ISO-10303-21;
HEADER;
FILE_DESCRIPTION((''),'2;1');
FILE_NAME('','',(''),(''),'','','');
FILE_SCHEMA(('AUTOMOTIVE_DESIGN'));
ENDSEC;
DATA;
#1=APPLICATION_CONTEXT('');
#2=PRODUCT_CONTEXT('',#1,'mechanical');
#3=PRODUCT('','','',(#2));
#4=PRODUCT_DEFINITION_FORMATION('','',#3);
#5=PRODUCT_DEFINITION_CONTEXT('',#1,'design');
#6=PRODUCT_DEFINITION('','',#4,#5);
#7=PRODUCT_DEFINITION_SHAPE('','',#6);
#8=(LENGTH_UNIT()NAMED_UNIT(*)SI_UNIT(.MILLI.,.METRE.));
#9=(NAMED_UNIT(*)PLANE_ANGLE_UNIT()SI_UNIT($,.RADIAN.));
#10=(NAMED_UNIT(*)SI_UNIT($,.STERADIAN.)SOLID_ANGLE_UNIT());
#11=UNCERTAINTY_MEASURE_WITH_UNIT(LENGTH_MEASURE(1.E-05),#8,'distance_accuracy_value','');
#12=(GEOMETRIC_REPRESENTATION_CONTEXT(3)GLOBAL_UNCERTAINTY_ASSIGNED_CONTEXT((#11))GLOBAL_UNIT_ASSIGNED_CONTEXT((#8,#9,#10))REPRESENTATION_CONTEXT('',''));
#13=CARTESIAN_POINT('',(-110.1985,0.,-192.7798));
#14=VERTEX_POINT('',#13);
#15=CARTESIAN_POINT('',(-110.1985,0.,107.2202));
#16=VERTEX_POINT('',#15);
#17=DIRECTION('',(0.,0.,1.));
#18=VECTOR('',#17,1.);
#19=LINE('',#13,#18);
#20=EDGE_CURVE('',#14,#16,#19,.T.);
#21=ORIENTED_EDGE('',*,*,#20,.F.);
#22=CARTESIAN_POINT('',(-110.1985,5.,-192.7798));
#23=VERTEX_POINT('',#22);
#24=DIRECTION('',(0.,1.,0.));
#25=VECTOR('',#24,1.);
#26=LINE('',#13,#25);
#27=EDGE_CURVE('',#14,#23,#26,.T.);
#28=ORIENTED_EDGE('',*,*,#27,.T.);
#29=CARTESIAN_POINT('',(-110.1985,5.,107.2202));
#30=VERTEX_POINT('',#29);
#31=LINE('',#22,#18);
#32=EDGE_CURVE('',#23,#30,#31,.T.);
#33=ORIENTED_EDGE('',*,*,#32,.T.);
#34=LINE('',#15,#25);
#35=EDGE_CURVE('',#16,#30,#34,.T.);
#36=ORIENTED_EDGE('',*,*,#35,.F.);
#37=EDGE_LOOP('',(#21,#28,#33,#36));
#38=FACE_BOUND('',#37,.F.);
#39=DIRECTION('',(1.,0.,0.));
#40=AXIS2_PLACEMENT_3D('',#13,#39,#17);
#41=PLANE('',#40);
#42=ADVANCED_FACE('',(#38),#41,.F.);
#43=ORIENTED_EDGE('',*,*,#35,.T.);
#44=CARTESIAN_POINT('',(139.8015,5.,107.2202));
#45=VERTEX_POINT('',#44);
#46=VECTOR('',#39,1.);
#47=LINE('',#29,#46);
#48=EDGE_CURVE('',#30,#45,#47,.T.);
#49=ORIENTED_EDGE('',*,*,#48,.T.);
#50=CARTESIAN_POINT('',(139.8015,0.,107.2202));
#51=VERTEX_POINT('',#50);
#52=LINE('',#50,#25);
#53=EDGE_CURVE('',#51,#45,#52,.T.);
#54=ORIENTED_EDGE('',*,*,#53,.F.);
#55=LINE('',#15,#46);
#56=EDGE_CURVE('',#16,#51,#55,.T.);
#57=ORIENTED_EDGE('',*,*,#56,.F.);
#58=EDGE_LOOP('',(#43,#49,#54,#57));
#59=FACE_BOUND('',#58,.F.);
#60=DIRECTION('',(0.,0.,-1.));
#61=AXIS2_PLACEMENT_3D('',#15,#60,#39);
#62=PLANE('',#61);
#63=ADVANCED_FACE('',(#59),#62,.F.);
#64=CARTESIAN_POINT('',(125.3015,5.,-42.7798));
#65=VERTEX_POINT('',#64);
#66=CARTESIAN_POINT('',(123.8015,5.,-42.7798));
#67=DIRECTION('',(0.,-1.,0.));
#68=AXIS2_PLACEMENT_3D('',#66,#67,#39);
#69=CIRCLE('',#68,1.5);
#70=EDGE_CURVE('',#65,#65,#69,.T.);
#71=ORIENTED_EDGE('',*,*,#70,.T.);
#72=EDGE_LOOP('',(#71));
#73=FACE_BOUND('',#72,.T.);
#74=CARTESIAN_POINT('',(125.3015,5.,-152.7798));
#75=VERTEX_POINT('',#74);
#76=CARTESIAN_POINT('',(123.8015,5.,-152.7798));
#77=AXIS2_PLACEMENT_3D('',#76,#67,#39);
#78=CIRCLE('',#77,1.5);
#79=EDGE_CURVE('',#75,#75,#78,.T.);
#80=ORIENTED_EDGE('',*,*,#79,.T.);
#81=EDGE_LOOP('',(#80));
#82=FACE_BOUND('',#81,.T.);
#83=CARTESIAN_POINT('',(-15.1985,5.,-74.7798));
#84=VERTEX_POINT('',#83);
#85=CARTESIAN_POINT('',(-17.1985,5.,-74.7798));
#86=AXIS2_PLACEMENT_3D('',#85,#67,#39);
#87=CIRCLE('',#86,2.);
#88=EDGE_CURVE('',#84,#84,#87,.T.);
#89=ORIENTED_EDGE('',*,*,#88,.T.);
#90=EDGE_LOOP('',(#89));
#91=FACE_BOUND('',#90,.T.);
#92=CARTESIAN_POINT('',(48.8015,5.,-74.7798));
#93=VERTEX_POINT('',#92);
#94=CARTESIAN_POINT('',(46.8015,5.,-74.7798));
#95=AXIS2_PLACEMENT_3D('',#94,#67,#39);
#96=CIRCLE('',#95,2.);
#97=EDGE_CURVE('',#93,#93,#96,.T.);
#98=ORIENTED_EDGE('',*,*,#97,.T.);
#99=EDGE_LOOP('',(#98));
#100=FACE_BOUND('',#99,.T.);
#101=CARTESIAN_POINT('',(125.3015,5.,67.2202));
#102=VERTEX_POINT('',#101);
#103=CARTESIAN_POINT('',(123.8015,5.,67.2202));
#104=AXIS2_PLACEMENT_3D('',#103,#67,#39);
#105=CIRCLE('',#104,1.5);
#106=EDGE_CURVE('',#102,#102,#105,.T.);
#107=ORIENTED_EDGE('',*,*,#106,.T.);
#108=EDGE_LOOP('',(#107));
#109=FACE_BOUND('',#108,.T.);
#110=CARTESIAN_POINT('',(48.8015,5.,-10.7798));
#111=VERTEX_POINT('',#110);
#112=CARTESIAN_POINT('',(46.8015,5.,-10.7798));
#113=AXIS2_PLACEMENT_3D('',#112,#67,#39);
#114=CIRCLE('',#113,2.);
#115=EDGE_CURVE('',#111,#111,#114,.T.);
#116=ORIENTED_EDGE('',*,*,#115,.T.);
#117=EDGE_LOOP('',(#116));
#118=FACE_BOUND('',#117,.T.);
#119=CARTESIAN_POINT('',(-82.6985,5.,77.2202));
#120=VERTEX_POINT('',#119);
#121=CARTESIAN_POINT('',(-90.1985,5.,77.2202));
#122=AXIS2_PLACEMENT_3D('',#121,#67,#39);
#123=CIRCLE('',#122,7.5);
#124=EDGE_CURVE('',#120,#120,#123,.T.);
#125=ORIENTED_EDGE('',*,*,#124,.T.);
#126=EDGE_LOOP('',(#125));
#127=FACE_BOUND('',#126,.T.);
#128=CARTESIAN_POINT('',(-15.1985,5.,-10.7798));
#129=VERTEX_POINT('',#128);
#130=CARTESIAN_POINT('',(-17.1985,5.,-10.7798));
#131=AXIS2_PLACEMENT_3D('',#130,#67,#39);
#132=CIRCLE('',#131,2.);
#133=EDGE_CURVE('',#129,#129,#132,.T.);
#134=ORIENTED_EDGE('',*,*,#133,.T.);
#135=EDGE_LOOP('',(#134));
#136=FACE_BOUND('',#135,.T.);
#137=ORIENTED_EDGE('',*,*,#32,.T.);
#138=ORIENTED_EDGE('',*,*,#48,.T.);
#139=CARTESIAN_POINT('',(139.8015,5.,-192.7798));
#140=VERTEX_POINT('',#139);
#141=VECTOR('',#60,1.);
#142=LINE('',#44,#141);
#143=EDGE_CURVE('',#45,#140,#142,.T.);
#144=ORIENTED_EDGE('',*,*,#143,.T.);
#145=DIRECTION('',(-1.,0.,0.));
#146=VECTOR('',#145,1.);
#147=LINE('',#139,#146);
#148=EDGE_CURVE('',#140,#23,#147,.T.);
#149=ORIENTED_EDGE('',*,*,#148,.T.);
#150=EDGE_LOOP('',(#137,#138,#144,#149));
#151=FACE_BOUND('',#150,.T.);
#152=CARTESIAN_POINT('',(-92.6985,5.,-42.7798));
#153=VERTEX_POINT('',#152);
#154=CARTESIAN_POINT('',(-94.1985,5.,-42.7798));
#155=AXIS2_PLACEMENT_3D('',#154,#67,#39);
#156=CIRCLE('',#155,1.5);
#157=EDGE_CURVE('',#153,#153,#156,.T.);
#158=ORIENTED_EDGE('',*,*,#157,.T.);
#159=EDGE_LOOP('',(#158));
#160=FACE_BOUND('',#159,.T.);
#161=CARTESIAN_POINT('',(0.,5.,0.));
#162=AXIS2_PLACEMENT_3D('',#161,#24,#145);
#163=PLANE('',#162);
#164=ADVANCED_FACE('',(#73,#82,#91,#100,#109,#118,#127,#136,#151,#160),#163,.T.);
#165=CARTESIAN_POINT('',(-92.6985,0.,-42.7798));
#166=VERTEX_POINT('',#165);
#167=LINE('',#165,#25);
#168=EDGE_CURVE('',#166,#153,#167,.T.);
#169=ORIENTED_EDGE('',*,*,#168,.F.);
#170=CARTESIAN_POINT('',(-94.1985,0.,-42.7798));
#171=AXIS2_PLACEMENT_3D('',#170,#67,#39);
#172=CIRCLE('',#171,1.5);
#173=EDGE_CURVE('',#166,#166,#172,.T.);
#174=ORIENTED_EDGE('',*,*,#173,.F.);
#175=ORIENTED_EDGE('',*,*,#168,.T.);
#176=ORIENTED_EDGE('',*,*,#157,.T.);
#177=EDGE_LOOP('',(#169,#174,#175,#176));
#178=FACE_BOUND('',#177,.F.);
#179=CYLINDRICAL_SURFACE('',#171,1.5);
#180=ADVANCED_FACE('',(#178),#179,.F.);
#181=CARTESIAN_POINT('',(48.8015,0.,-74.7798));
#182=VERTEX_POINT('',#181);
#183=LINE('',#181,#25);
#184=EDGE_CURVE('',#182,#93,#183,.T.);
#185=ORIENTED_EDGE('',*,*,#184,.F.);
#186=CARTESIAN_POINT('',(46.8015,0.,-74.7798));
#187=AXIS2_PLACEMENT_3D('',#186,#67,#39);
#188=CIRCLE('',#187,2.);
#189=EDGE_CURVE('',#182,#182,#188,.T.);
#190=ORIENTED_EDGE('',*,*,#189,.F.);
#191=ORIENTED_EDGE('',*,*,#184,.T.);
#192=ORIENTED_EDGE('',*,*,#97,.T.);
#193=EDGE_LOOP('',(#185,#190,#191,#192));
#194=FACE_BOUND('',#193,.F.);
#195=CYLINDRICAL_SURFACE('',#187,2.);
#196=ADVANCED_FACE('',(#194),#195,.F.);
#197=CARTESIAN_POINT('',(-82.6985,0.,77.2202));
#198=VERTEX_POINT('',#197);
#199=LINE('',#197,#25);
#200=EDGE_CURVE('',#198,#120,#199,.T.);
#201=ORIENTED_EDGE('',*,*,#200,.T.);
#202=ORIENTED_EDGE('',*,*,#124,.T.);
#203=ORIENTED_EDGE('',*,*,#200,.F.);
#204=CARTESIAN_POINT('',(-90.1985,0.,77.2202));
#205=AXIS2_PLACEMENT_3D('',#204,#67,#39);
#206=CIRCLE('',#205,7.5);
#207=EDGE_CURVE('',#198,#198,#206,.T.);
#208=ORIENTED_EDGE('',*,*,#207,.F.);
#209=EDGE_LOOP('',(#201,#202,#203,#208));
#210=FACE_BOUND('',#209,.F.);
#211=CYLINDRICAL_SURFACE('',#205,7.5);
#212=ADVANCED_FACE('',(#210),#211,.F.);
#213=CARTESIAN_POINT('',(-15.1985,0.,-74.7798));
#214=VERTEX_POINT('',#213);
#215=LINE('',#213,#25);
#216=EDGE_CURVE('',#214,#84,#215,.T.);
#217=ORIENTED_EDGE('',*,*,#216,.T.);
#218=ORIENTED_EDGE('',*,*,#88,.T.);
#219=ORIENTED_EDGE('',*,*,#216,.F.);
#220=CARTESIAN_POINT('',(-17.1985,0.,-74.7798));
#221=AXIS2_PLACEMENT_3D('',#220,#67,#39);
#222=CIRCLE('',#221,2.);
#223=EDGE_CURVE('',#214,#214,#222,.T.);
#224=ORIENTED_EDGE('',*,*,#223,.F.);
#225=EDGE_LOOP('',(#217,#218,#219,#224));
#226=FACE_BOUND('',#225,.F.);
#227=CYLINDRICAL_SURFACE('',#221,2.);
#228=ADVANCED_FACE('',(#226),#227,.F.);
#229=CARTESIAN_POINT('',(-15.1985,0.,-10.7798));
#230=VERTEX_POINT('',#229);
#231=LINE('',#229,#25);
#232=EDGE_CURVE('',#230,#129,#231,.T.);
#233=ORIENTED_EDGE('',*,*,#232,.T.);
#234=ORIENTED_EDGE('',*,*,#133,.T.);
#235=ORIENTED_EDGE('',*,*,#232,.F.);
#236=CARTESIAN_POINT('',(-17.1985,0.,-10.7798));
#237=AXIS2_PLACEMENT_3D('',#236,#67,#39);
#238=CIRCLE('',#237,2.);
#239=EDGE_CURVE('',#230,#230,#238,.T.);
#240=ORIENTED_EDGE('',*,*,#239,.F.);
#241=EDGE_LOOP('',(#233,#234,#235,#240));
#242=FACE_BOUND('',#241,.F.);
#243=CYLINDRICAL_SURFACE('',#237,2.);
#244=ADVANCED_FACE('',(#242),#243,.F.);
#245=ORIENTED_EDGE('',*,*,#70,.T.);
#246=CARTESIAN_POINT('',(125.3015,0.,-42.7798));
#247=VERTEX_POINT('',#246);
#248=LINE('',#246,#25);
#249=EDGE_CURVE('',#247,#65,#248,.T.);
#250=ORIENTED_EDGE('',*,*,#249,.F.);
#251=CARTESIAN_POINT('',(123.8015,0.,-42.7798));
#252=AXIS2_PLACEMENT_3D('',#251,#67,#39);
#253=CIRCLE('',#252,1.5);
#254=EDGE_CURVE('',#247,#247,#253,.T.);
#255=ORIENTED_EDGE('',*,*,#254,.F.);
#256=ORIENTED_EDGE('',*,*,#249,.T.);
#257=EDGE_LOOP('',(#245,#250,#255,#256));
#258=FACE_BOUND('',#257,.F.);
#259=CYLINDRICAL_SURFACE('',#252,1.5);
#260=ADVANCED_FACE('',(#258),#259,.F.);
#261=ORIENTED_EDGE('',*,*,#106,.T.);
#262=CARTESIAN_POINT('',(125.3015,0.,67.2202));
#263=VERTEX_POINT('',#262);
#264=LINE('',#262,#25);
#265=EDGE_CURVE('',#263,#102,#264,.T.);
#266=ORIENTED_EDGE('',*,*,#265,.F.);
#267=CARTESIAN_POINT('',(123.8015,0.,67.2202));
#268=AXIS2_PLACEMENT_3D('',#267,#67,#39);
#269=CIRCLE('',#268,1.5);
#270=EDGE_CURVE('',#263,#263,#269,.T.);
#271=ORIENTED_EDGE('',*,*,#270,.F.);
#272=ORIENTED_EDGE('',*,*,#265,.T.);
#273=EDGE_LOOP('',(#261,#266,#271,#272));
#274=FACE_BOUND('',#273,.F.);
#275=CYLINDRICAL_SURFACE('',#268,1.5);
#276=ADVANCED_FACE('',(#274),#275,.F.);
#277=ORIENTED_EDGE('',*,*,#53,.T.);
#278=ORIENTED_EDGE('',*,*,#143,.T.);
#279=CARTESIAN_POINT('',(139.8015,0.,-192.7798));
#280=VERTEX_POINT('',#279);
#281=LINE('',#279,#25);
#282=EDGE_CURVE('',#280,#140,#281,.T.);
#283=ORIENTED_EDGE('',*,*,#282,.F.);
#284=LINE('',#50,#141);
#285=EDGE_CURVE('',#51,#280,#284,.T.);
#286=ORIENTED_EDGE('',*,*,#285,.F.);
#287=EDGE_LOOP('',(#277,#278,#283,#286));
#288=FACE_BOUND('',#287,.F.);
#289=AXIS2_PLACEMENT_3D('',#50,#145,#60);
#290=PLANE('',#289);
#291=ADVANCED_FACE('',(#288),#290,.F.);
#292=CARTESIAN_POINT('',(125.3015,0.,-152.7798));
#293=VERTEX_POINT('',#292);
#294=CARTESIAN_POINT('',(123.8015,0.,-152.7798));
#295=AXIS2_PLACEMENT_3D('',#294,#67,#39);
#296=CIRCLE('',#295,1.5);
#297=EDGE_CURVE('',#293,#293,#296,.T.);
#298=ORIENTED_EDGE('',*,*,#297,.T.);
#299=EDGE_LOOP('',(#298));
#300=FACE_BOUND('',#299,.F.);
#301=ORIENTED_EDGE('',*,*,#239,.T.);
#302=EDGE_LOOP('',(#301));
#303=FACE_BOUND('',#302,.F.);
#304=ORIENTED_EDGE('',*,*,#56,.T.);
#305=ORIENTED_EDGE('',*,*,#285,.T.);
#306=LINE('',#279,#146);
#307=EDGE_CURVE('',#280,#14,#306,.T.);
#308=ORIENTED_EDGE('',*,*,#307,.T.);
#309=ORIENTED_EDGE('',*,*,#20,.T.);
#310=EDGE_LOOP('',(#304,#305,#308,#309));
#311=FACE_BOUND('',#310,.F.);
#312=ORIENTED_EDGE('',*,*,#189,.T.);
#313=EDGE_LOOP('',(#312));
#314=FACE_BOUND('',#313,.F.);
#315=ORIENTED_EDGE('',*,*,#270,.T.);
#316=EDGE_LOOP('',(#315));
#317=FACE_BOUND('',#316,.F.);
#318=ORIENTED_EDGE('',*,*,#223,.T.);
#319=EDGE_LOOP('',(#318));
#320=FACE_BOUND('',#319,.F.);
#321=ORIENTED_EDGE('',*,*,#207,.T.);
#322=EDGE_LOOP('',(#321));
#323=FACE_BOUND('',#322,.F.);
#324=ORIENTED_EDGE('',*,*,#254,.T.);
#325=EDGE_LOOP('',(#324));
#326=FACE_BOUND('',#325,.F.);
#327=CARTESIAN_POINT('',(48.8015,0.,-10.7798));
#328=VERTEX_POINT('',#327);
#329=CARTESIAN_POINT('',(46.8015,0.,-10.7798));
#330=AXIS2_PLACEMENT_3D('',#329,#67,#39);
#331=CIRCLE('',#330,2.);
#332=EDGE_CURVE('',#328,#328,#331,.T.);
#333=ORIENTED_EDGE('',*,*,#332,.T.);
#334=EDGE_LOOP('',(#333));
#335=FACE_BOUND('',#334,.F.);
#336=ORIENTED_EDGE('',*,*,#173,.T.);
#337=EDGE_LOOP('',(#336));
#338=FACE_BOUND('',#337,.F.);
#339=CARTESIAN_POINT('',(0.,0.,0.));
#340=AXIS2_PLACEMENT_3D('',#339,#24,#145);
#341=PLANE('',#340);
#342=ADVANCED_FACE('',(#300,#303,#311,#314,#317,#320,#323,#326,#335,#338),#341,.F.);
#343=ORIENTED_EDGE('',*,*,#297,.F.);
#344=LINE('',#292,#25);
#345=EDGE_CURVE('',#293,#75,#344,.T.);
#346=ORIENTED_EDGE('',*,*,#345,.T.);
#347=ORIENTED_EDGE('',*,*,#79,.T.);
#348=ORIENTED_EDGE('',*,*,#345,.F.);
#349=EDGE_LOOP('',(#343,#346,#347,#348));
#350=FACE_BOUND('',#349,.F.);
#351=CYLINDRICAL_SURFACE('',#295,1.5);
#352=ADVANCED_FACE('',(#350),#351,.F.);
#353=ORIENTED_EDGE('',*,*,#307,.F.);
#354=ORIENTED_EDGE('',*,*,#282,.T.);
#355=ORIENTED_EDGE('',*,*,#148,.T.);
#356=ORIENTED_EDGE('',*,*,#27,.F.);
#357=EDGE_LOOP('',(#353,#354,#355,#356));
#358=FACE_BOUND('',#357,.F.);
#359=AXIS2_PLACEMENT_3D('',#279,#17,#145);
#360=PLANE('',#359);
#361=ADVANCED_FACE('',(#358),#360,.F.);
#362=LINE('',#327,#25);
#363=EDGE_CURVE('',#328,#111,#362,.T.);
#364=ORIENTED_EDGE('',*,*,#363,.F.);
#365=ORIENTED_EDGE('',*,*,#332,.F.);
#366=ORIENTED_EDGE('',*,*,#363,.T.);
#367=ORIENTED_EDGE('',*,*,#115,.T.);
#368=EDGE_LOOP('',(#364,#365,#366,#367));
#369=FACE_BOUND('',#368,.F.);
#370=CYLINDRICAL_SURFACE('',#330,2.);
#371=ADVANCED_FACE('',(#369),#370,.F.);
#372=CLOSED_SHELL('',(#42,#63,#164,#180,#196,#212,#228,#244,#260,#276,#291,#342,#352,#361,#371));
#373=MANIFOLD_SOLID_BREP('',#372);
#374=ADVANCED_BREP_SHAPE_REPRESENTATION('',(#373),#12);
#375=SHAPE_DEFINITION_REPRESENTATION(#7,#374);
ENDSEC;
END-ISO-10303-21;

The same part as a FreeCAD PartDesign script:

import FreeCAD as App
import Part
import Sketcher

V = App.Vector
Q = App.Units.Quantity

doc = App.newDocument("Part")
params = doc.addObject("Spreadsheet::Sheet", "Params")
for row, (alias, value) in enumerate([
    ("sketch1_width", "250 mm"),
    ("sketch1_height", "300 mm"),
    ("pad1_length", "5 mm"),
    ("sketch2_diameter", "3 mm"),
    ("sketch3_diameter", "15 mm"),
    ("sketch4_diameter", "4 mm"),
], start=1):
    params.set(f"A{row}", alias)
    params.set(f"B{row}", "=" + value)
    params.setAlias(f"B{row}", alias)

body = doc.addObject("PartDesign::Body", "Body")

# Sketch on XZ plane
sketch1 = body.newObject("Sketcher::SketchObject", "Sketch")
sketch1.AttachmentSupport = (doc.getObject("XZ_Plane"), [""])
sketch1.MapMode = "FlatFace"
sketch1.addGeometry([
    Part.LineSegment(V(-110.1985, -192.7798, 0), V(-110.1985, 107.2202, 0)),
    Part.LineSegment(V(-110.1985, 107.2202, 0), V(139.8015, 107.2202, 0)),
    Part.LineSegment(V(139.8015, 107.2202, 0), V(139.8015, -192.7798, 0)),
    Part.LineSegment(V(139.8015, -192.7798, 0), V(-110.1985, -192.7798, 0)),
], False)
sketch1.addConstraint([
    Sketcher.Constraint("Coincident", 0, 2, 1, 1),
    Sketcher.Constraint("Coincident", 1, 2, 2, 1),
    Sketcher.Constraint("Coincident", 2, 2, 3, 1),
    Sketcher.Constraint("Coincident", 3, 2, 0, 1),
    Sketcher.Constraint("Vertical", 0),
    Sketcher.Constraint("Horizontal", 1),
    Sketcher.Constraint("Vertical", 2),
    Sketcher.Constraint("Horizontal", 3),
    Sketcher.Constraint("DistanceX", 1, 1, 1, 2, Q("250 mm")),
    Sketcher.Constraint("DistanceY", 0, 1, 0, 2, Q("300 mm")),
    Sketcher.Constraint("DistanceX", 0, 2, -1, 1, Q("110.1985 mm")),
    Sketcher.Constraint("DistanceY", -1, 1, 0, 2, Q("107.2202 mm")),
])
sketch1.setExpression("Constraints[8]", "Params.sketch1_width")
sketch1.setExpression("Constraints[9]", "Params.sketch1_height")
pad1 = body.newObject("PartDesign::Pad", "Pad")
pad1.Profile = sketch1
pad1.setExpression("Length", "Params.pad1_length")
pad1.Reversed = True

# Sketch on XZ plane
sketch2 = body.newObject("Sketcher::SketchObject", "Sketch001")
sketch2.AttachmentSupport = (doc.getObject("XZ_Plane"), [""])
sketch2.MapMode = "FlatFace"
sketch2.addGeometry([
    Part.Circle(V(-94.1985, -42.7798, 0), V(0, 0, 1), 1.5),
    Part.Circle(V(123.8015, -42.7798, 0), V(0, 0, 1), 1.5),
    Part.Circle(V(123.8015, 67.2202, 0), V(0, 0, 1), 1.5),
    Part.Circle(V(123.8015, -152.7798, 0), V(0, 0, 1), 1.5),
], False)
sketch2.addConstraint([
    Sketcher.Constraint("Equal", 0, 1),
    Sketcher.Constraint("Equal", 1, 2),
    Sketcher.Constraint("Equal", 2, 3),
    Sketcher.Constraint("Horizontal", 0, 3, 1, 3),
    Sketcher.Constraint("Vertical", 1, 3, 2, 3),
    Sketcher.Constraint("Vertical", 2, 3, 3, 3),
    Sketcher.Constraint("Diameter", 0, Q("3 mm")),
    Sketcher.Constraint("DistanceX", 0, 3, 1, 3, Q("218 mm")),
    Sketcher.Constraint("DistanceY", 1, 3, 2, 3, Q("110 mm")),
    Sketcher.Constraint("DistanceY", 3, 3, 1, 3, Q("110 mm")),
    Sketcher.Constraint("DistanceX", 0, 3, -1, 1, Q("94.1985 mm")),
    Sketcher.Constraint("DistanceY", 0, 3, -1, 1, Q("42.7798 mm")),
])
sketch2.setExpression("Constraints[6]", "Params.sketch2_diameter")
pocket1 = body.newObject("PartDesign::Pocket", "Pocket")
pocket1.Profile = sketch2
pocket1.Type = "ThroughAll"

# Sketch on XZ plane
sketch3 = body.newObject("Sketcher::SketchObject", "Sketch002")
sketch3.AttachmentSupport = (doc.getObject("XZ_Plane"), [""])
sketch3.MapMode = "FlatFace"
sketch3.addGeometry(Part.Circle(V(-90.1985, 77.2202, 0), V(0, 0, 1), 7.5), False)
sketch3.addConstraint([
    Sketcher.Constraint("Diameter", 0, Q("15 mm")),
    Sketcher.Constraint("DistanceX", 0, 3, -1, 1, Q("90.1985 mm")),
    Sketcher.Constraint("DistanceY", -1, 1, 0, 3, Q("77.2202 mm")),
])
sketch3.setExpression("Constraints[0]", "Params.sketch3_diameter")
pocket2 = body.newObject("PartDesign::Pocket", "Pocket001")
pocket2.Profile = sketch3
pocket2.Type = "UpToFirst"

# Sketch on XZ plane
sketch4 = body.newObject("Sketcher::SketchObject", "Sketch003")
sketch4.AttachmentSupport = (doc.getObject("XZ_Plane"), [""])
sketch4.MapMode = "FlatFace"
sketch4.addGeometry([
    Part.Circle(V(-17.1985, -10.7798, 0), V(0, 0, 1), 2),
    Part.Circle(V(-17.1985, -74.7798, 0), V(0, 0, 1), 2),
    Part.Circle(V(46.8015, -74.7798, 0), V(0, 0, 1), 2),
    Part.Circle(V(46.8015, -10.7798, 0), V(0, 0, 1), 2),
], False)
sketch4.addConstraint([
    Sketcher.Constraint("Equal", 0, 1),
    Sketcher.Constraint("Equal", 1, 2),
    Sketcher.Constraint("Equal", 2, 3),
    Sketcher.Constraint("Horizontal", 1, 3, 2, 3),
    Sketcher.Constraint("Horizontal", 0, 3, 3, 3),
    Sketcher.Constraint("Vertical", 0, 3, 1, 3),
    Sketcher.Constraint("Vertical", 2, 3, 3, 3),
    Sketcher.Constraint("Diameter", 0, Q("4 mm")),
    Sketcher.Constraint("DistanceY", 1, 3, 0, 3, Q("64 mm")),
    Sketcher.Constraint("DistanceX", 1, 3, 2, 3, Q("64 mm")),
    Sketcher.Constraint("DistanceX", 0, 3, -1, 1, Q("17.1985 mm")),
    Sketcher.Constraint("DistanceY", 0, 3, -1, 1, Q("10.7798 mm")),
])
sketch4.setExpression("Constraints[7]", "Params.sketch4_diameter")
pocket3 = body.newObject("PartDesign::Pocket", "Pocket002")
pocket3.Profile = sketch4
pocket3.Type = "UpToFirst"

doc.recompute()
